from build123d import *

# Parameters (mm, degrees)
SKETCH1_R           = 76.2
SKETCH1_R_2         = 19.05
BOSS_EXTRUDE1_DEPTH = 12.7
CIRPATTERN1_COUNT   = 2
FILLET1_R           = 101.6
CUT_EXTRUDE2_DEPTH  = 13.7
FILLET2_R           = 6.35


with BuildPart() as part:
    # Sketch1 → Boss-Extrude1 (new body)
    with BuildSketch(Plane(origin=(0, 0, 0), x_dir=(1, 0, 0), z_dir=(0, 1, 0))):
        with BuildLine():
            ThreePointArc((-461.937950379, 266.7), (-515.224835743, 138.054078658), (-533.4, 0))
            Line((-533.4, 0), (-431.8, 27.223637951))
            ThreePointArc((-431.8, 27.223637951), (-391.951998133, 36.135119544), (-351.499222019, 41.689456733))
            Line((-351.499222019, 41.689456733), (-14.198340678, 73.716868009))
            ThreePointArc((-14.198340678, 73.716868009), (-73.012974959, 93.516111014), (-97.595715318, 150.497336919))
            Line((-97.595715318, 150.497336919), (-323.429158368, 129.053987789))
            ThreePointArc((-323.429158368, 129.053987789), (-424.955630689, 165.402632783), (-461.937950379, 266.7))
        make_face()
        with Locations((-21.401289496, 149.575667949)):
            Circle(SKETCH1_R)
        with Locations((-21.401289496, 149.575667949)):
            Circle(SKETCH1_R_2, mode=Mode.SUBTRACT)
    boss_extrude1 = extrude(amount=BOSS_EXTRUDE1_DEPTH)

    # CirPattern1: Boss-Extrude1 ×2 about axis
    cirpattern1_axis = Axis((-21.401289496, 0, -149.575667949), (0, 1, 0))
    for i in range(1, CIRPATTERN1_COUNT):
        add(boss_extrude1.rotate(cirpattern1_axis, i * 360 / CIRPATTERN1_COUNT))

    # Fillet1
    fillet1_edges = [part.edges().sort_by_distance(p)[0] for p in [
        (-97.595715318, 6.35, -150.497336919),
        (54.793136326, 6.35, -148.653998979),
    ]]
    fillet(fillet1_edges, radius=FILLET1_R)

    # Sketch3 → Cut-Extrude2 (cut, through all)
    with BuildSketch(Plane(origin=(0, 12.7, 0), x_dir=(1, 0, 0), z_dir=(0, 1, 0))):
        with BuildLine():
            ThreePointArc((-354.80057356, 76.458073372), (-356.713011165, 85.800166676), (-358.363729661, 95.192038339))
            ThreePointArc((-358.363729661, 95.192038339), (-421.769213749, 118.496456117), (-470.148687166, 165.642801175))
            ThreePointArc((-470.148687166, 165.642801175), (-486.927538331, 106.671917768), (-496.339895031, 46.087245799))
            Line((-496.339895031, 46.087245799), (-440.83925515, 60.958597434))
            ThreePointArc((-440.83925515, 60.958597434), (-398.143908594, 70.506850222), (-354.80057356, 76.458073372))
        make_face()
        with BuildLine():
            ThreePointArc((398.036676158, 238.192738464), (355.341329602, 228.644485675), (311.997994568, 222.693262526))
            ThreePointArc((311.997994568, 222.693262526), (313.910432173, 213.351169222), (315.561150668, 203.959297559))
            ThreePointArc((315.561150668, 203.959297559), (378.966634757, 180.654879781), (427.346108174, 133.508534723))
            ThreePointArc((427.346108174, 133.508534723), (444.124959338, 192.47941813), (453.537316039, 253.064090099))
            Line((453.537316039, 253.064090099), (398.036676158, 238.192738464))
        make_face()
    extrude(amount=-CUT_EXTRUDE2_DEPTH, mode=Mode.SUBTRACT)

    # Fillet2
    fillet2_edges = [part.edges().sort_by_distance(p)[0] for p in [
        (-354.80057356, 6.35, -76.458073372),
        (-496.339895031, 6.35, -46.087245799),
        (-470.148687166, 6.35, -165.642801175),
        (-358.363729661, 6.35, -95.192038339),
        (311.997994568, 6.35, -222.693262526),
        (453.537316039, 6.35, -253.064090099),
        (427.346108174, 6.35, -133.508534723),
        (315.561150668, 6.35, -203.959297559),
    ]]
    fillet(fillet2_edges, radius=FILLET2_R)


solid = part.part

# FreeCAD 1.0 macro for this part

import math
import FreeCAD as App
import Part
import Sketcher
from FreeCAD import Vector
Q = App.Units.Quantity


def edges_at(feature, points):
    """Names of the edges that pass closest to the given points."""
    edges = feature.Shape.Edges
    near = lambda p: min(range(len(edges)), key=lambda i: edges[i].distToShape(Part.Vertex(*p))[0])
    return sorted({f"Edge{near(p) + 1}" for p in points})

doc = App.newDocument("Part")
params = doc.addObject("Spreadsheet::Sheet", "Params")
for row, (alias, value) in enumerate([
    ("sketch1_radius", "21 in"),
    ("sketch1_radius2", "3 in"),
    ("sketch1_radius3", "5 in"),
    ("sketch1_diameter", "1.5 in"),
    ("pad1_length", "0.5 in"),
    ("fillet_radius", "4 in"),
    ("sketch2_radius", "6.375 in"),
    ("sketch2_radius2", "19.625 in"),
    ("fillet2_radius", "0.25 in"),
], start=1):
    params.set(f"A{row}", alias)
    params.set(f"B{row}", "=" + value)
    params.setAlias(f"B{row}", alias)

body = doc.addObject("PartDesign::Body", "Body")

# Sketch on XZ plane
sketch1 = doc.addObject("Sketcher::SketchObject", "Sketch")
body.addObject(sketch1)
sketch1.AttachmentSupport = (doc.XZ_Plane, [""])
sketch1.MapMode = "FlatFace"
sketch1.addGeometry([
    Part.ArcOfCircle(Part.Circle(Vector(0, 0, 0), Vector(0, 0, 1), 533), math.radians(180), math.radians(210)),  # 0
    Part.LineSegment(Vector(-533, 0, 0), Vector(-432, -27, 0)),  # 1
    Part.ArcOfCircle(Part.Circle(Vector(-305, 445, 0), Vector(0, 0, 1), 489), math.radians(-105), math.radians(-95.42)),  # 2
    Part.LineSegment(Vector(-351, -42, 0), Vector(-14, -74, 0)),  # 3
    Part.ArcOfCircle(Part.Circle(Vector(-21, -150, 0), Vector(0, 0, 1), 76), math.radians(-179), math.radians(85)),  # 4
    Part.LineSegment(Vector(-98, -150, 0), Vector(-323, -129, 0)),  # 5
    Part.ArcOfCircle(Part.Circle(Vector(-335, -255, 0), Vector(0, 0, 1), 127), math.radians(85), math.radians(185)),  # 6
    Part.Circle(Vector(-21, -150, 0), Vector(0, 0, 1), 19),  # 7
], False)
sketch1.addConstraint([
    Sketcher.Constraint("Coincident", 0, 1, 1, 1),
    Sketcher.Constraint("Tangent", 1, 2, 2, 1),
    Sketcher.Constraint("Tangent", 2, 2, 3, 1),
    Sketcher.Constraint("Tangent", 3, 2, 4, 2),
    Sketcher.Constraint("Coincident", 4, 1, 5, 1),
    Sketcher.Constraint("Tangent", 5, 2, 6, 1),
    Sketcher.Constraint("Coincident", 6, 2, 0, 2),
    Sketcher.Constraint("Coincident", 0, 3, -1, 1),
    Sketcher.Constraint("Coincident", 7, 3, 4, 3),
    Sketcher.Constraint("Parallel", 3, 5),
    Sketcher.Constraint("Radius", 0, Q("21 in")),
    Sketcher.Constraint("Radius", 4, Q("3 in")),
    Sketcher.Constraint("Radius", 6, Q("5 in")),
    Sketcher.Constraint("Diameter", 7, Q("1.5 in")),
    Sketcher.Constraint("DistanceX", 1, 2, -1, 1, Q("17 in")),
    Sketcher.Constraint("Angle", 1, Q("-15 deg")),
    Sketcher.Constraint("DistanceY", 6, 2, -1, 1, Q("10.5 in")),
    Sketcher.Constraint("Radius", 2, 488.768174),
    Sketcher.Constraint("DistanceX", 2, 3, 4, 3, 283.896198),
    Sketcher.Constraint("DistanceY", 4, 3, 3, 2, 75.8588),
    Sketcher.Constraint("DistanceY", 6, 3, -1, 1, 255.485321),
    Sketcher.Constraint("DistanceY", 3, 2, -1, 1, 73.716868),
])
sketch1.setExpression("Constraints[10]", "Params.sketch1_radius")
sketch1.setExpression("Constraints[11]", "Params.sketch1_radius2")
sketch1.setExpression("Constraints[12]", "Params.sketch1_radius3")
sketch1.setExpression("Constraints[13]", "Params.sketch1_diameter")
pad1 = doc.addObject("PartDesign::Pad", "Pad")
body.addObject(pad1)
pad1.Profile = sketch1
pad1.setExpression("Length", "Params.pad1_length")
pad1.Reversed = True
doc.recompute()

datumline = doc.addObject("PartDesign::Line", "DatumLine")
body.addObject(datumline)
datumline.Placement = App.Placement(Vector(-21.401289, 0, -149.575668), App.Rotation(Vector(0, 0, 1), Vector(0, 1, 0)))
polarpattern = doc.addObject("PartDesign::PolarPattern", "PolarPattern")
body.addObject(polarpattern)
polarpattern.Originals = [pad1]
polarpattern.Axis = (datumline, [""])
polarpattern.Angle = 360
polarpattern.Occurrences = 2
body.Tip = polarpattern
doc.recompute()

fillet = doc.addObject("PartDesign::Fillet", "Fillet")
body.addObject(fillet)
fillet.Base = (polarpattern, edges_at(polarpattern, [(-97.596, 6.35, -150.497), (54.793, 6.35, -148.654)]))
fillet.setExpression("Radius", "Params.fillet_radius")

# Sketch on XZ plane
sketch2 = doc.addObject("Sketcher::SketchObject", "Sketch001")
body.addObject(sketch2)
sketch2.AttachmentSupport = (doc.XZ_Plane, [""])
sketch2.MapMode = "FlatFace"
sketch2.AttachmentOffset = App.Placement(Vector(0, 0, -0.5 * 25.4), App.Rotation())
sketch2.addGeometry([
    Part.ArcOfCircle(Part.Circle(Vector(-21, -150, 0), Vector(0, 0, 1), 341), math.radians(167.63), math.radians(170.83)),  # 0
    Part.ArcOfCircle(Part.Circle(Vector(-335, -255, 0), Vector(0, 0, 1), 162), math.radians(98), math.radians(146)),  # 1
    Part.ArcOfCircle(Part.Circle(Vector(0, 0, 0), Vector(0, 0, 1), 498), math.radians(-174.7), math.radians(-160.59)),  # 2
    Part.LineSegment(Vector(-496, -46, 0), Vector(-441, -61, 0)),  # 3
    Part.ArcOfCircle(Part.Circle(Vector(-305, 445, 0), Vector(0, 0, 1), 524), math.radians(-105), math.radians(-95.42)),  # 4
    Part.ArcOfCircle(Part.Circle(Vector(262, -744, 0), Vector(0, 0, 1), 524), math.radians(75), math.radians(84.58)),  # 5
    Part.ArcOfCircle(Part.Circle(Vector(-21, -150, 0), Vector(0, 0, 1), 341), math.radians(-12.37), math.radians(-9.17)),  # 6
    Part.ArcOfCircle(Part.Circle(Vector(293, -44, 0), Vector(0, 0, 1), 162), math.radians(-82), math.radians(-34)),  # 7
    Part.ArcOfCircle(Part.Circle(Vector(-43, -299, 0), Vector(0, 0, 1), 498), math.radians(5.3), math.radians(19.41)),  # 8
    Part.LineSegment(Vector(454, -253, 0), Vector(398, -238, 0)),  # 9
], False)
sketch2.addConstraint([
    Sketcher.Constraint("Coincident", 0, 2, 1, 1),
    Sketcher.Constraint("Coincident", 1, 2, 2, 2),
    Sketcher.Constraint("Coincident", 2, 1, 3, 1),
    Sketcher.Constraint("Tangent", 3, 2, 4, 1),
    Sketcher.Constraint("Coincident", 4, 2, 0, 1),
    Sketcher.Constraint("Coincident", 5, 2, 6, 1),
    Sketcher.Constraint("Coincident", 6, 2, 7, 1),
    Sketcher.Constraint("Coincident", 7, 2, 8, 2),
    Sketcher.Constraint("Coincident", 8, 1, 9, 1),
    Sketcher.Constraint("Tangent", 9, 2, 5, 1),
    Sketcher.Constraint("Coincident", 2, 3, -1, 1),
    Sketcher.Constraint("Coincident", 6, 3, 0, 3),
    Sketcher.Constraint("Equal", 4, 5),
    Sketcher.Constraint("Equal", 0, 6),
    Sketcher.Constraint("Equal", 1, 7),
    Sketcher.Constraint("Equal", 2, 8),
    Sketcher.Constraint("Parallel", 3, 9),
    Sketcher.Constraint("Equal", 3, 9),
    Sketcher.Constraint("Angle", 3, Q("-15 deg")),
    Sketcher.Constraint("Radius", 1, Q("6.375 in")),
    Sketcher.Constraint("Radius", 2, Q("19.625 in")),
    Sketcher.Constraint("DistanceX", -1, 1, 8, 1, Q("17.8557998 in")),
    Sketcher.Constraint("Radius", 0, 341.322817),
    Sketcher.Constraint("Radius", 4, 523.693174),
    Sketcher.Constraint("DistanceY", 5, 3, -1, 1, 744.0415),
    Sketcher.Constraint("DistanceY", 1, 2, -1, 1, 165.642801),
    Sketcher.Constraint("DistanceX", 4, 3, 0, 3, 283.896199),
    Sketcher.Constraint("DistanceX", 0, 3, 5, 3, 283.896198),
    Sketcher.Constraint("Distance", 3, 57.45849),
    Sketcher.Constraint("DistanceY", 0, 3, -1, 1, 149.575668),
    Sketcher.Constraint("DistanceY", 1, 3, -1, 1, 255.485321),
    Sketcher.Constraint("DistanceX", 8, 3, -1, 1, 42.802579),
    Sketcher.Constraint("DistanceX", -1, 1, 6, 2, 315.561151),
    Sketcher.Constraint("DistanceX", -1, 1, 7, 2, 427.346108),
])
sketch2.setExpression("Constraints[19]", "Params.sketch2_radius")
sketch2.setExpression("Constraints[20]", "Params.sketch2_radius2")
pocket1 = doc.addObject("PartDesign::Pocket", "Pocket")
body.addObject(pocket1)
pocket1.Profile = sketch2
pocket1.Type = "ThroughAll"
pocket1.Reversed = True
doc.recompute()

fillet2 = doc.addObject("PartDesign::Fillet", "Fillet001")
body.addObject(fillet2)
fillet2.Base = (pocket1, edges_at(pocket1, [
    (-354.801, 6.35, -76.458),
    (-496.34, 6.35, -46.087),
    (-470.149, 6.35, -165.643),
    (-358.364, 6.35, -95.192),
    (311.998, 6.35, -222.693),
    (453.537, 6.35, -253.064),
    (427.346, 6.35, -133.509),
    (315.561, 6.35, -203.959),
]))
fillet2.setExpression("Radius", "Params.fillet2_radius")

doc.recompute()
